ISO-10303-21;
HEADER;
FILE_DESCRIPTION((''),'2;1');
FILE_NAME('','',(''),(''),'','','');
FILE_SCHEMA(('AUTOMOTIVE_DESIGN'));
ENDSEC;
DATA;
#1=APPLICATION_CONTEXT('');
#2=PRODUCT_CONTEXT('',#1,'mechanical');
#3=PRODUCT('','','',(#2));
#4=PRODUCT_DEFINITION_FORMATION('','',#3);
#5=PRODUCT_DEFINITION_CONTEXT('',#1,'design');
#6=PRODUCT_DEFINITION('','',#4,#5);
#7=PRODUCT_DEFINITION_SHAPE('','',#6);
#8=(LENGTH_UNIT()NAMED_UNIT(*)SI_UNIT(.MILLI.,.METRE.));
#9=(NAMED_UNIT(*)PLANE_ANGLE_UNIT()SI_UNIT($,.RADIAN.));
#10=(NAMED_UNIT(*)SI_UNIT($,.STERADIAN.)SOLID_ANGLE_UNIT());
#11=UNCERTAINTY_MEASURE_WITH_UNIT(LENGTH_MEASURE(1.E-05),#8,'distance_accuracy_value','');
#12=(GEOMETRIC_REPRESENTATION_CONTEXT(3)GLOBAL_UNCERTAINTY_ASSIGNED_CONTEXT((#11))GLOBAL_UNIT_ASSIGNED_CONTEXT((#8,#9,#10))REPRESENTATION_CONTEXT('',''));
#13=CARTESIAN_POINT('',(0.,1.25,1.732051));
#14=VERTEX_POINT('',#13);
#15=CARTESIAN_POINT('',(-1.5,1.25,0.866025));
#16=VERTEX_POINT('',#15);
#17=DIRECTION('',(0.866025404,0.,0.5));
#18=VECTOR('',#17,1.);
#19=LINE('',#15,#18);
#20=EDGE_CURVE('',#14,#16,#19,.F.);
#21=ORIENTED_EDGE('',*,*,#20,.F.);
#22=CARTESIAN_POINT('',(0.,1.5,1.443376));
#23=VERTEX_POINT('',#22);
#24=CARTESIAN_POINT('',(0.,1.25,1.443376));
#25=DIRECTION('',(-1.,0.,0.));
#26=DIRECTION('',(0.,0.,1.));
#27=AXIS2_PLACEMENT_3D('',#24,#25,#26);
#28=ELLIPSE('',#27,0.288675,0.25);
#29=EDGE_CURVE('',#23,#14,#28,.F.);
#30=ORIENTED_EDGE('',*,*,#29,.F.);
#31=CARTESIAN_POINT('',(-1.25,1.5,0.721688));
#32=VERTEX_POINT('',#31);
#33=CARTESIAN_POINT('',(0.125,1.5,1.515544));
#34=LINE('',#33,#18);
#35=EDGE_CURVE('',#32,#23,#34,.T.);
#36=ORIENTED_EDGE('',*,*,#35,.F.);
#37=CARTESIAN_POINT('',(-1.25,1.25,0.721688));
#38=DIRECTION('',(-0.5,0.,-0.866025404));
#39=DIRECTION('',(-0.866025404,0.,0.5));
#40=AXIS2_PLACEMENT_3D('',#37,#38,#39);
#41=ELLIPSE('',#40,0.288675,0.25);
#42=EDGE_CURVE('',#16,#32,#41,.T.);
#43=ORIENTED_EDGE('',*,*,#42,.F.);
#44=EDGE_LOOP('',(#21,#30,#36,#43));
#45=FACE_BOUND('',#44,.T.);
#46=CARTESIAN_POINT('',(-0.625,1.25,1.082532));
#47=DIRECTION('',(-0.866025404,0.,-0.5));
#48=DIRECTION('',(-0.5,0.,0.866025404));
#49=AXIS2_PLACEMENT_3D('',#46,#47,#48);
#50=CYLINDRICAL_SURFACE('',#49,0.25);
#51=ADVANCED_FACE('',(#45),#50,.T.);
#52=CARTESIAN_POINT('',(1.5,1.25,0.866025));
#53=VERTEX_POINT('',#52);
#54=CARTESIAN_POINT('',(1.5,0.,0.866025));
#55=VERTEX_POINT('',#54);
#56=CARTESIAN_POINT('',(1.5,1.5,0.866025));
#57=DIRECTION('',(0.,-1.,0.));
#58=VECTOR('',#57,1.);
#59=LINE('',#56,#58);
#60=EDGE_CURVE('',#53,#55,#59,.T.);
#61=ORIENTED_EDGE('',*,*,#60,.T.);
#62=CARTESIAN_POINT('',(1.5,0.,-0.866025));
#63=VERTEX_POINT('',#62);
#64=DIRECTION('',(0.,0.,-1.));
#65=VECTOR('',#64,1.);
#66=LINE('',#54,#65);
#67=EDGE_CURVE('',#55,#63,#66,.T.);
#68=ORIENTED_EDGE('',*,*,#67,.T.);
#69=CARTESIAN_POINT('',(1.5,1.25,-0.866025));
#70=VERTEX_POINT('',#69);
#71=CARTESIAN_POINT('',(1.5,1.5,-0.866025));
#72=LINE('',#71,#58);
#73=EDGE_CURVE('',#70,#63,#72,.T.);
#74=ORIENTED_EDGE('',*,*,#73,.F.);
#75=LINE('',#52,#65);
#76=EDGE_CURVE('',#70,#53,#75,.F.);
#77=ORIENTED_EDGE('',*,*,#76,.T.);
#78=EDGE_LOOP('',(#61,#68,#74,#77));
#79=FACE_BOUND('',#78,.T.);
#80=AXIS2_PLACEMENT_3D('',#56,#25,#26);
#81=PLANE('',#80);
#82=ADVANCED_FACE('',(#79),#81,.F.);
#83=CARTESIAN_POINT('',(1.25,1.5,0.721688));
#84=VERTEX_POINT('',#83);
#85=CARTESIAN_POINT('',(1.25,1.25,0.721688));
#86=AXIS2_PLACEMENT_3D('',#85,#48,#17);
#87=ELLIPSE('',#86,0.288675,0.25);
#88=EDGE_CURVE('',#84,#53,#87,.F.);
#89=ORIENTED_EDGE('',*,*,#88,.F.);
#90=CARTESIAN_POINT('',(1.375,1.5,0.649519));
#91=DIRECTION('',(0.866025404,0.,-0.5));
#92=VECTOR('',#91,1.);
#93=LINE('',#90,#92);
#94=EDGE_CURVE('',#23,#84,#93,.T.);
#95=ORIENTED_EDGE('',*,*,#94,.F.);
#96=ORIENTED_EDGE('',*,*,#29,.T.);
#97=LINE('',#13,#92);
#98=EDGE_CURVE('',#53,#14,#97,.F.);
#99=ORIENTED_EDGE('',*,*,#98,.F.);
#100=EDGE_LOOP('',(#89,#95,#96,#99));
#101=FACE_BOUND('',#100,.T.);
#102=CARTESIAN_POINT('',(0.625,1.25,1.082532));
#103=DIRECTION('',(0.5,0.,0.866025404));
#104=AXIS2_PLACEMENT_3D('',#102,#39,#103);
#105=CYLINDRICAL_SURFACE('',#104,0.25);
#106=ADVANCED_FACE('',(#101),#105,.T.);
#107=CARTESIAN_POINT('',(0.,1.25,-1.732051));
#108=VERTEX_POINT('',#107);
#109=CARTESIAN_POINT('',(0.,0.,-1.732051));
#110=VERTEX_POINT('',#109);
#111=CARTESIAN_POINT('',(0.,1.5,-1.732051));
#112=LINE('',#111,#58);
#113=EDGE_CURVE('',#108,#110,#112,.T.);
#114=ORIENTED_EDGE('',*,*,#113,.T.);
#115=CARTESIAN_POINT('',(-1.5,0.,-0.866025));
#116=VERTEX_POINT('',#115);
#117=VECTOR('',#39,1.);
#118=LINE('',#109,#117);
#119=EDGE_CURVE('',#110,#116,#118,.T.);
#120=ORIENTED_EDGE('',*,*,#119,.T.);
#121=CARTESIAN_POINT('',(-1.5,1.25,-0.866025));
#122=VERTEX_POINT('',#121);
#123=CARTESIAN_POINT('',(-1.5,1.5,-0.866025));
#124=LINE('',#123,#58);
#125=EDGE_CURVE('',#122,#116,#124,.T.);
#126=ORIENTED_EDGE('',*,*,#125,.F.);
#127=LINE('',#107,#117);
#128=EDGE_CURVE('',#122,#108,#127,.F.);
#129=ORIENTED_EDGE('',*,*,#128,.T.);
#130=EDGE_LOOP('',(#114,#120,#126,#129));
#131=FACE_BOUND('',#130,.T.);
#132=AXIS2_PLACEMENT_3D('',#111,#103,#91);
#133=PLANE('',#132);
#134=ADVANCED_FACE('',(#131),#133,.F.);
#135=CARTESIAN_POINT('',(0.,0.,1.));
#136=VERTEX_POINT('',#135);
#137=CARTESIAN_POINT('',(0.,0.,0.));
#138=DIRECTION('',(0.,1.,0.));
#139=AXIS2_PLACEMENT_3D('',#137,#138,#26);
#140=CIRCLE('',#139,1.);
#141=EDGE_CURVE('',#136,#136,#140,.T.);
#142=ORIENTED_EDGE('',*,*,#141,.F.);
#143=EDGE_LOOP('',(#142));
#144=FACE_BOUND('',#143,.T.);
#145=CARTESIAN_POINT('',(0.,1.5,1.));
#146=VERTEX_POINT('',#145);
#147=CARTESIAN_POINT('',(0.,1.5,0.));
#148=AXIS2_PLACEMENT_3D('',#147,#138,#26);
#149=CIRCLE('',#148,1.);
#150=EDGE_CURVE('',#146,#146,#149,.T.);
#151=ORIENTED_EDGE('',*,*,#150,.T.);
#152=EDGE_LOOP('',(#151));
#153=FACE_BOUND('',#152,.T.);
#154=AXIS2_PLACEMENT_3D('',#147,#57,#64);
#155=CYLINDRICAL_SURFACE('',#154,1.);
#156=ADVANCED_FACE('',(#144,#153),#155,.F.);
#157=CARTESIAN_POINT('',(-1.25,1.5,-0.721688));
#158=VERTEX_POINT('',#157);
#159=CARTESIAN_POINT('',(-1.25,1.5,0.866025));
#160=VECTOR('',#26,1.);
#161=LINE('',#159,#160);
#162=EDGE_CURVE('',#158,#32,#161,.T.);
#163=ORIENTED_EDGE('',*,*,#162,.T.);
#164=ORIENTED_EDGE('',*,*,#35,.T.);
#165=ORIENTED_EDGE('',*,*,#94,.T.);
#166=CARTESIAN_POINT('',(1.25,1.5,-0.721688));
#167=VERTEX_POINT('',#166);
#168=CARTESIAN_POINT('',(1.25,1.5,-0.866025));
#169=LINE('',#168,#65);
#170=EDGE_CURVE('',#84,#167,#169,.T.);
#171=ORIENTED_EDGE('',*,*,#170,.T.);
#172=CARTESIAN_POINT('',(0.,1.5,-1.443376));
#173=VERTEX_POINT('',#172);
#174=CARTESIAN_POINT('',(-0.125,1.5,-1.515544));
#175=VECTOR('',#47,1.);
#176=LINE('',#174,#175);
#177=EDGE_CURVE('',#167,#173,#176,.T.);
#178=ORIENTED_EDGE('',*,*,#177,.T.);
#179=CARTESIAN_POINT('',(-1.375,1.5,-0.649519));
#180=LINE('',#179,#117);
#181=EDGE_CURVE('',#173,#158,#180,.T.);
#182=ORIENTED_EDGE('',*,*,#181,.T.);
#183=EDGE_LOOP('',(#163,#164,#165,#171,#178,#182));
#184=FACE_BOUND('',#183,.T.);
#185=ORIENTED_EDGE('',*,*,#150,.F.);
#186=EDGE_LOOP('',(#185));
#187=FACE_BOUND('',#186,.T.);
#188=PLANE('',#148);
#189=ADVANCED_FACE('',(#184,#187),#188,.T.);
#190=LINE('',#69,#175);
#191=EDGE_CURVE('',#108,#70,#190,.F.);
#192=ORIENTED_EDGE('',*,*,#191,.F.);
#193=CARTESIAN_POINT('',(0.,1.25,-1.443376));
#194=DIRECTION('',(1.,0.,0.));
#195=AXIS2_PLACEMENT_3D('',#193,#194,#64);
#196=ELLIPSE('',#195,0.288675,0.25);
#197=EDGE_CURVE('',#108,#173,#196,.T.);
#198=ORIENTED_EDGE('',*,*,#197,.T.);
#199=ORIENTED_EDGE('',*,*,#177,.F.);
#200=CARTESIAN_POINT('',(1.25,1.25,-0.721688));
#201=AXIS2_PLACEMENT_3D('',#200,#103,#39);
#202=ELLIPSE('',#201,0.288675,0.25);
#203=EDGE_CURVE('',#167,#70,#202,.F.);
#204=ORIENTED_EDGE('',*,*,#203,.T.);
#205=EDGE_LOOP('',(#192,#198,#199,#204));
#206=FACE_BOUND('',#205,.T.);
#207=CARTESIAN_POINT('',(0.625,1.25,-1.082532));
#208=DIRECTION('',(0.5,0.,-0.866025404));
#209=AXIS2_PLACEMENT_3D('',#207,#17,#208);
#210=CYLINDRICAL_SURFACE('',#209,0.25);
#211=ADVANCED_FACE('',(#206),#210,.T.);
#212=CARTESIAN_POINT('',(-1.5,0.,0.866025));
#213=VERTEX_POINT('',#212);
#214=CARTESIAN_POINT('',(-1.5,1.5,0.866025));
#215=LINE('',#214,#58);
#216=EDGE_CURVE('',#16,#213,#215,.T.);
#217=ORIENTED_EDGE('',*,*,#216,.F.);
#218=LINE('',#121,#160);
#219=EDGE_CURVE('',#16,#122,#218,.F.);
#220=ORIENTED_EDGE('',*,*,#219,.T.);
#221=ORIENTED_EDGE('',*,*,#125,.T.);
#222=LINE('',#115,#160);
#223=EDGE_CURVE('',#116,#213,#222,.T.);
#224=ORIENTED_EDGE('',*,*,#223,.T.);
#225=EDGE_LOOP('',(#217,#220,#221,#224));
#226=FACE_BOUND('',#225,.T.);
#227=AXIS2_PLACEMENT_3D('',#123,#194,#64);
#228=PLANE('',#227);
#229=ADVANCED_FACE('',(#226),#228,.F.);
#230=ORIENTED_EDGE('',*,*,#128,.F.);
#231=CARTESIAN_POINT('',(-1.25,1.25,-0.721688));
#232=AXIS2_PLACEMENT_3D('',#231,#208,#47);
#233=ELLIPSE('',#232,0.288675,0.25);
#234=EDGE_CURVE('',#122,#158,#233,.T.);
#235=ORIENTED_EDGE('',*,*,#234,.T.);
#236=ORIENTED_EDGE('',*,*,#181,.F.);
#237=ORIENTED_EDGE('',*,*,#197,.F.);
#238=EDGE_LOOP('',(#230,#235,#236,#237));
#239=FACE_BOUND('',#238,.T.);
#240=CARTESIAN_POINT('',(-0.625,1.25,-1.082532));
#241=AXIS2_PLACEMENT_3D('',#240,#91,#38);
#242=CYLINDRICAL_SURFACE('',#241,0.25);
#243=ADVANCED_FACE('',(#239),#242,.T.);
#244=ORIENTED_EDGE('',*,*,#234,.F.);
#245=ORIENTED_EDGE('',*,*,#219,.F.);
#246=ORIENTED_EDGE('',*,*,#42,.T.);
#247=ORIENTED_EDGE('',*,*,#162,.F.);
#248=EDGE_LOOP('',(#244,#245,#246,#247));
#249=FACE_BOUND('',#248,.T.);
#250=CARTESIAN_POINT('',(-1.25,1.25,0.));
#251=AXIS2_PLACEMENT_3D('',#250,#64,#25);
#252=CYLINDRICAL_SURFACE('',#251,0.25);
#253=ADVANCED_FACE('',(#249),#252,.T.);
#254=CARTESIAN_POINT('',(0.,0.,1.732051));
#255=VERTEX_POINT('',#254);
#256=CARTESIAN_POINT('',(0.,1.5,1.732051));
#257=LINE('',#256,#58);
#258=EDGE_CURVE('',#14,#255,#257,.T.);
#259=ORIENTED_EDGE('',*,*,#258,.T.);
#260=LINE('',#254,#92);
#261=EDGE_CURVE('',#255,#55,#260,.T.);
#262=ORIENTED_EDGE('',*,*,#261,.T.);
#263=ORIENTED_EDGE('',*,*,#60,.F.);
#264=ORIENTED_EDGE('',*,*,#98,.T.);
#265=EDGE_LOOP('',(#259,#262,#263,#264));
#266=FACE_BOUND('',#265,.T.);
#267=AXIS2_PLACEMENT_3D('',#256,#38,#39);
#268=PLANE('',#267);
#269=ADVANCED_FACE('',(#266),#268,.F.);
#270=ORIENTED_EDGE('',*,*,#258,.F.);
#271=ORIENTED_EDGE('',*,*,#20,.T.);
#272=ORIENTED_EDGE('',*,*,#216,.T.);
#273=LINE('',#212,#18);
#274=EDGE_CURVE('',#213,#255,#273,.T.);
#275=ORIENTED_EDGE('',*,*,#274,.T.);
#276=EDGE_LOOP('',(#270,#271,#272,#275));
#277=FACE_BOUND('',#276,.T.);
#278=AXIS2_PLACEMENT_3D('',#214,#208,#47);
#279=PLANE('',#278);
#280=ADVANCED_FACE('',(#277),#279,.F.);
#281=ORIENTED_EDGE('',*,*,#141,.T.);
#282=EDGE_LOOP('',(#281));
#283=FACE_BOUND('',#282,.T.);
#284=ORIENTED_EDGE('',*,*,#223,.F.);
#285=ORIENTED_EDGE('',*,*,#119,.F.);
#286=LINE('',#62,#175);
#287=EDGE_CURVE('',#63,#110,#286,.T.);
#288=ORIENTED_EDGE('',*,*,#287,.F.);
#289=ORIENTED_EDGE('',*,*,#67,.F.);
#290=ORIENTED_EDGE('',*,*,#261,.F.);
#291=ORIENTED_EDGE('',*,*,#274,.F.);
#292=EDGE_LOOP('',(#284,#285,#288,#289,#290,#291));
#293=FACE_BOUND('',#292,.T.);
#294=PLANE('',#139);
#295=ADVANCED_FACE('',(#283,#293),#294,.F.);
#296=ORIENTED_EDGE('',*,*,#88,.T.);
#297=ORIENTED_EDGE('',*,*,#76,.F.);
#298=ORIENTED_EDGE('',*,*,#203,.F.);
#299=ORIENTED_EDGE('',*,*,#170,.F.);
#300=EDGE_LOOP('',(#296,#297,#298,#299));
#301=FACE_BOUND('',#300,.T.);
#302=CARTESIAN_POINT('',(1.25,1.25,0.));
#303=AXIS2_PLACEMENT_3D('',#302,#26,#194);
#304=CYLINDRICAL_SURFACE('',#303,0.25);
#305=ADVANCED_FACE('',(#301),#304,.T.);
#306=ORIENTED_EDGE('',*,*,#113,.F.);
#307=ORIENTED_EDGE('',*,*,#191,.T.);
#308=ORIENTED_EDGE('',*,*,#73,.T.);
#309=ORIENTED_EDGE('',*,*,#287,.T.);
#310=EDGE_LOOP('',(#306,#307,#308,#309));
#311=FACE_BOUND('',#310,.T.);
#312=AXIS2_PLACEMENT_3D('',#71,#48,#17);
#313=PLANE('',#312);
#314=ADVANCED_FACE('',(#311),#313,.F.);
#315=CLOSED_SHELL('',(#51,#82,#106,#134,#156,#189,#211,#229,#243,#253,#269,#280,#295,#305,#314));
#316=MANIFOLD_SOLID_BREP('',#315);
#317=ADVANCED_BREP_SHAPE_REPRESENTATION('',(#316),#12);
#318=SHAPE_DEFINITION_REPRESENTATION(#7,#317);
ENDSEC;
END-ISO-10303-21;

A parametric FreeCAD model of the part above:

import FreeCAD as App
import Part
import Sketcher
from FreeCAD import Vector
Q = App.Units.Quantity


def edges_at(feature, points):
    """Names of the edges that pass closest to the given points."""
    edges = feature.Shape.Edges
    near = lambda p: min(range(len(edges)), key=lambda i: edges[i].distToShape(Part.Vertex(*p))[0])
    return sorted({f"Edge{near(p) + 1}" for p in points})


def add_polygon(sketch, points):
    """Adds a closed chain of lines whose ends are joined by coincident constraints."""
    first, n = sketch.GeometryCount, len(points)
    for a, b in zip(points, points[1:] + points[:1]):
        sketch.addGeometry(Part.LineSegment(App.Vector(*a, 0), App.Vector(*b, 0)), False)
    for i in range(n):
        sketch.addConstraint(Sketcher.Constraint("Coincident", first + i, 2, first + (i + 1) % n, 1))

doc = App.newDocument("Part")
body = doc.addObject("PartDesign::Body", "Body")

sketch1 = body.newObject("Sketcher::SketchObject", "Sketch")
sketch1.AttachmentSupport = (doc.getObject("XZ_Plane"), [""])
sketch1.MapMode = "FlatFace"
add_polygon(sketch1, [(0, -1.732051), (-1.5, -0.866025), (-1.5, 0.866025), (0, 1.732051), (1.5, 0.866025), (1.5, -0.866025)])
sketch1.addGeometry(Part.Circle(Vector(0, 0, 0), Vector(0, 0, 1), 1), False)
sketch1.addConstraint(Sketcher.Constraint("Vertical", 1))
sketch1.addConstraint(Sketcher.Constraint("Vertical", 4))
sketch1.addConstraint(Sketcher.Constraint("Coincident", 6, 3, -1, 1))
sketch1.addConstraint(Sketcher.Constraint("Symmetric", 0, 2, 3, 2, -1, 1))
sketch1.addConstraint(Sketcher.Constraint("Symmetric", 2, 2, 5, 2, -1, 1))
sketch1.addConstraint(Sketcher.Constraint("PointOnObject", 2, 2, -2))
sketch1.addConstraint(Sketcher.Constraint("Parallel", 2, 5))
sketch1.addConstraint(Sketcher.Constraint("Horizontal", 1, 2, 3, 2))
sketch1.addConstraint(Sketcher.Constraint("Diameter", 6, Q("2 mm")))
sketch1.addConstraint(Sketcher.Constraint("Angle", 0, Q("150 deg")))
sketch1.addConstraint(Sketcher.Constraint("DistanceX", 1, 2, 3, 2, Q("3 mm")))
sketch1.addConstraint(Sketcher.Constraint("DistanceY", 1, 1, 1, 2, Q("1.732051 mm")))
pad1 = body.newObject("PartDesign::Pad", "Pad")
pad1.Profile = sketch1
pad1.Length = 1.5
pad1.Reversed = True
doc.recompute()

fillet = body.newObject("PartDesign::Fillet", "Fillet")
fillet.Base = (pad1, edges_at(pad1, [
    (-1.5, 1.5, 0),
    (-0.75, 1.5, 1.299),
    (0.75, 1.5, 1.299),
    (1.5, 1.5, 0),
    (0.75, 1.5, -1.299),
    (-0.75, 1.5, -1.299),
]))
fillet.Radius = 0.25

doc.recompute()
